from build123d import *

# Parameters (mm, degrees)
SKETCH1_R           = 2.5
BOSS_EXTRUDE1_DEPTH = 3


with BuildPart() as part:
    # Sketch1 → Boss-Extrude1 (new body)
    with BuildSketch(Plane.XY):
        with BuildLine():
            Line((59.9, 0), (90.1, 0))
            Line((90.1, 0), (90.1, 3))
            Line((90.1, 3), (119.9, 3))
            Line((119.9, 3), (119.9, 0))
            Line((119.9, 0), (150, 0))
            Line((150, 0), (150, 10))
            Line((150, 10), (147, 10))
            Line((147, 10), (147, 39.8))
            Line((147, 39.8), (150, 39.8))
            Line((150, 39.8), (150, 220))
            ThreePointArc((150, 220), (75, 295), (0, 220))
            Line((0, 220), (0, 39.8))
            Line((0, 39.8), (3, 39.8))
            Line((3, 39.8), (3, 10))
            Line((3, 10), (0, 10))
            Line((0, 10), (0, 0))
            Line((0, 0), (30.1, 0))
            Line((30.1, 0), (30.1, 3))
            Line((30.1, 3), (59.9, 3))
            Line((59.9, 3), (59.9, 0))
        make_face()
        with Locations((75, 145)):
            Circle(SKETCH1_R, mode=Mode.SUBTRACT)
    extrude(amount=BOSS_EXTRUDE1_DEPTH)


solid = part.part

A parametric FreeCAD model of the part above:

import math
import FreeCAD as App
import Part
import Sketcher
Q = App.Units.Quantity

doc = App.newDocument("Part")
body = doc.addObject("PartDesign::Body", "Body")

# Sketch on XY plane
sketch1 = body.newObject("Sketcher::SketchObject", "Sketch")
sketch1.AttachmentSupport = (doc.getObject("XY_Plane"), [""])
sketch1.MapMode = "FlatFace"
sketch1.addGeometry(Part.LineSegment(App.Vector(59.9, 0, 0), App.Vector(90.1, 0, 0)), False)
sketch1.addGeometry(Part.LineSegment(App.Vector(90.1, 0, 0), App.Vector(90.1, 3, 0)), False)
sketch1.addGeometry(Part.LineSegment(App.Vector(90.1, 3, 0), App.Vector(119.9, 3, 0)), False)
sketch1.addGeometry(Part.LineSegment(App.Vector(119.9, 3, 0), App.Vector(119.9, 0, 0)), False)
sketch1.addGeometry(Part.LineSegment(App.Vector(119.9, 0, 0), App.Vector(150, 0, 0)), False)
sketch1.addGeometry(Part.LineSegment(App.Vector(150, 0, 0), App.Vector(150, 10, 0)), False)
sketch1.addGeometry(Part.LineSegment(App.Vector(150, 10, 0), App.Vector(147, 10, 0)), False)
sketch1.addGeometry(Part.LineSegment(App.Vector(147, 10, 0), App.Vector(147, 39.8, 0)), False)
sketch1.addGeometry(Part.LineSegment(App.Vector(147, 39.8, 0), App.Vector(150, 39.8, 0)), False)
sketch1.addGeometry(Part.LineSegment(App.Vector(150, 39.8, 0), App.Vector(150, 220, 0)), False)
sketch1.addGeometry(Part.ArcOfCircle(Part.Circle(App.Vector(75, 220, 0), App.Vector(0, 0, 1), 75), math.radians(0), math.radians(180)), False)
sketch1.addGeometry(Part.LineSegment(App.Vector(0, 220, 0), App.Vector(0, 39.8, 0)), False)
sketch1.addGeometry(Part.LineSegment(App.Vector(0, 39.8, 0), App.Vector(3, 39.8, 0)), False)
sketch1.addGeometry(Part.LineSegment(App.Vector(3, 39.8, 0), App.Vector(3, 10, 0)), False)
sketch1.addGeometry(Part.LineSegment(App.Vector(3, 10, 0), App.Vector(0, 10, 0)), False)
sketch1.addGeometry(Part.LineSegment(App.Vector(0, 10, 0), App.Vector(0, 0, 0)), False)
sketch1.addGeometry(Part.LineSegment(App.Vector(0, 0, 0), App.Vector(30.1, 0, 0)), False)
sketch1.addGeometry(Part.LineSegment(App.Vector(30.1, 0, 0), App.Vector(30.1, 3, 0)), False)
sketch1.addGeometry(Part.LineSegment(App.Vector(30.1, 3, 0), App.Vector(59.9, 3, 0)), False)
sketch1.addGeometry(Part.LineSegment(App.Vector(59.9, 3, 0), App.Vector(59.9, 0, 0)), False)
sketch1.addGeometry(Part.Circle(App.Vector(75, 145, 0), App.Vector(0, 0, 1), 2.5), False)
sketch1.addConstraint(Sketcher.Constraint("Coincident", 0, 2, 1, 1))
sketch1.addConstraint(Sketcher.Constraint("Coincident", 1, 2, 2, 1))
sketch1.addConstraint(Sketcher.Constraint("Coincident", 2, 2, 3, 1))
sketch1.addConstraint(Sketcher.Constraint("Coincident", 3, 2, 4, 1))
sketch1.addConstraint(Sketcher.Constraint("Coincident", 4, 2, 5, 1))
sketch1.addConstraint(Sketcher.Constraint("Coincident", 5, 2, 6, 1))
sketch1.addConstraint(Sketcher.Constraint("Coincident", 6, 2, 7, 1))
sketch1.addConstraint(Sketcher.Constraint("Coincident", 7, 2, 8, 1))
sketch1.addConstraint(Sketcher.Constraint("Coincident", 8, 2, 9, 1))
sketch1.addConstraint(Sketcher.Constraint("Tangent", 9, 2, 10, 1))
sketch1.addConstraint(Sketcher.Constraint("Tangent", 10, 2, 11, 1))
sketch1.addConstraint(Sketcher.Constraint("Coincident", 11, 2, 12, 1))
sketch1.addConstraint(Sketcher.Constraint("Coincident", 12, 2, 13, 1))
sketch1.addConstraint(Sketcher.Constraint("Coincident", 13, 2, 14, 1))
sketch1.addConstraint(Sketcher.Constraint("Coincident", 14, 2, 15, 1))
sketch1.addConstraint(Sketcher.Constraint("Coincident", 15, 2, 16, 1))
sketch1.addConstraint(Sketcher.Constraint("Coincident", 16, 2, 17, 1))
sketch1.addConstraint(Sketcher.Constraint("Coincident", 17, 2, 18, 1))
sketch1.addConstraint(Sketcher.Constraint("Coincident", 18, 2, 19, 1))
sketch1.addConstraint(Sketcher.Constraint("Coincident", 19, 2, 0, 1))
sketch1.addConstraint(Sketcher.Constraint("Horizontal", 0))
sketch1.addConstraint(Sketcher.Constraint("Vertical", 1))
sketch1.addConstraint(Sketcher.Constraint("Horizontal", 2))
sketch1.addConstraint(Sketcher.Constraint("Vertical", 3))
sketch1.addConstraint(Sketcher.Constraint("Horizontal", 4))
sketch1.addConstraint(Sketcher.Constraint("Vertical", 5))
sketch1.addConstraint(Sketcher.Constraint("Horizontal", 6))
sketch1.addConstraint(Sketcher.Constraint("Vertical", 7))
sketch1.addConstraint(Sketcher.Constraint("Horizontal", 8))
sketch1.addConstraint(Sketcher.Constraint("Vertical", 9))
sketch1.addConstraint(Sketcher.Constraint("Vertical", 11))
sketch1.addConstraint(Sketcher.Constraint("Horizontal", 12))
sketch1.addConstraint(Sketcher.Constraint("Vertical", 13))
sketch1.addConstraint(Sketcher.Constraint("Horizontal", 14))
sketch1.addConstraint(Sketcher.Constraint("Vertical", 15))
sketch1.addConstraint(Sketcher.Constraint("Horizontal", 16))
sketch1.addConstraint(Sketcher.Constraint("Vertical", 17))
sketch1.addConstraint(Sketcher.Constraint("Horizontal", 18))
sketch1.addConstraint(Sketcher.Constraint("Vertical", 19))
sketch1.addConstraint(Sketcher.Constraint("Coincident", 15, 2, -1, 1))
sketch1.addConstraint(Sketcher.Constraint("PointOnObject", 0, 2, -1))
sketch1.addConstraint(Sketcher.Constraint("PointOnObject", 3, 2, -1))
sketch1.addConstraint(Sketcher.Constraint("PointOnObject", 10, 2, -2))
sketch1.addConstraint(Sketcher.Constraint("Horizontal", 8, 2, 11, 2))
sketch1.addConstraint(Sketcher.Constraint("Horizontal", 6, 2, 13, 2))
sketch1.addConstraint(Sketcher.Constraint("Horizontal", 2, 2, 17, 2))
sketch1.addConstraint(Sketcher.Constraint("Vertical", 10, 3, 20, 3))
sketch1.addConstraint(Sketcher.Constraint("Vertical", 5, 2, 8, 2))
sketch1.addConstraint(Sketcher.Constraint("Equal", 8, 12))
sketch1.addConstraint(Sketcher.Constraint("Equal", 4, 16))
sketch1.addConstraint(Sketcher.Constraint("Equal", 2, 18))
sketch1.addConstraint(Sketcher.Constraint("Equal", 14, 1))
sketch1.addConstraint(Sketcher.Constraint("Equal", 18, 7))
sketch1.addConstraint(Sketcher.Constraint("Diameter", 20, Q("5 mm")))
sketch1.addConstraint(Sketcher.Constraint("Radius", 10, Q("75 mm")))
sketch1.addConstraint(Sketcher.Constraint("DistanceX", 6, 2, 6, 1, Q("3 mm")))
sketch1.addConstraint(Sketcher.Constraint("DistanceY", 5, 1, 5, 2, Q("10 mm")))
sketch1.addConstraint(Sketcher.Constraint("DistanceX", 0, 1, 0, 2, Q("30.2 mm")))
sketch1.addConstraint(Sketcher.Constraint("DistanceX", 2, 1, 2, 2, Q("29.8 mm")))
sketch1.addConstraint(Sketcher.Constraint("DistanceY", 9, 1, 9, 2, Q("180.2 mm")))
sketch1.addConstraint(Sketcher.Constraint("DistanceY", -1, 1, 20, 3, Q("145 mm")))
pad1 = body.newObject("PartDesign::Pad", "Pad")
pad1.Profile = sketch1
pad1.Length = 3

doc.recompute()
